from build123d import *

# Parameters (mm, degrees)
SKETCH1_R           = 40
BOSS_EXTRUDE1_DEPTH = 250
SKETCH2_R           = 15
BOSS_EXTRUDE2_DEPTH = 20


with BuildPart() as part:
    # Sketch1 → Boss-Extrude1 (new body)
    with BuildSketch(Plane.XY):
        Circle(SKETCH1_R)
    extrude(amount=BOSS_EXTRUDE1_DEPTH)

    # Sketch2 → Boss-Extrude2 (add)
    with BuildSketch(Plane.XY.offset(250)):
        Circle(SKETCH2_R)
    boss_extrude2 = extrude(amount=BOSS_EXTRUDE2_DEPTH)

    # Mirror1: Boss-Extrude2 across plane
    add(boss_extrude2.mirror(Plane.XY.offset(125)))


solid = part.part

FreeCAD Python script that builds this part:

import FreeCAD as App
import Part
import Sketcher

V = App.Vector

doc = App.newDocument("Part")
body = doc.addObject("PartDesign::Body", "Body")

# Sketch on XY plane
sketch1 = doc.addObject("Sketcher::SketchObject", "Sketch")
body.addObject(sketch1)
sketch1.AttachmentSupport = (doc.XY_Plane, [""])
sketch1.MapMode = "FlatFace"
sketch1.addGeometry(Part.Circle(V(0, 0, 0), V(0, 0, 1), 40), False)
sketch1.addConstraint([
    Sketcher.Constraint("Coincident", 0, 3, -1, 1),
    Sketcher.Constraint("Diameter", 0, 80.0),
])
pad1 = doc.addObject("PartDesign::Pad", "Pad")
body.addObject(pad1)
pad1.Profile = sketch1
pad1.Length = 250

# Sketch on XY plane
sketch2 = doc.addObject("Sketcher::SketchObject", "Sketch001")
body.addObject(sketch2)
sketch2.AttachmentSupport = (doc.XY_Plane, [""])
sketch2.MapMode = "FlatFace"
sketch2.AttachmentOffset = App.Placement(V(0, 0, 250), App.Rotation())
sketch2.addGeometry(Part.Circle(V(0, 0, 0), V(0, 0, 1), 15), False)
sketch2.addConstraint([
    Sketcher.Constraint("Coincident", 0, 3, -1, 1),
    Sketcher.Constraint("Diameter", 0, 30.0),
])
pad2 = doc.addObject("PartDesign::Pad", "Pad001")
body.addObject(pad2)
pad2.Profile = sketch2
pad2.Length = 20
doc.recompute()

datumplane = doc.addObject("PartDesign::Plane", "DatumPlane")
body.addObject(datumplane)
datumplane.AttachmentSupport = (doc.XY_Plane, [""])
datumplane.MapMode = "FlatFace"
datumplane.AttachmentOffset = App.Placement(V(0, 0, 125), App.Rotation())
mirrored = doc.addObject("PartDesign::Mirrored", "Mirrored")
body.addObject(mirrored)
mirrored.Originals = [pad2]
mirrored.MirrorPlane = (datumplane, [""])
body.Tip = mirrored

doc.recompute()
